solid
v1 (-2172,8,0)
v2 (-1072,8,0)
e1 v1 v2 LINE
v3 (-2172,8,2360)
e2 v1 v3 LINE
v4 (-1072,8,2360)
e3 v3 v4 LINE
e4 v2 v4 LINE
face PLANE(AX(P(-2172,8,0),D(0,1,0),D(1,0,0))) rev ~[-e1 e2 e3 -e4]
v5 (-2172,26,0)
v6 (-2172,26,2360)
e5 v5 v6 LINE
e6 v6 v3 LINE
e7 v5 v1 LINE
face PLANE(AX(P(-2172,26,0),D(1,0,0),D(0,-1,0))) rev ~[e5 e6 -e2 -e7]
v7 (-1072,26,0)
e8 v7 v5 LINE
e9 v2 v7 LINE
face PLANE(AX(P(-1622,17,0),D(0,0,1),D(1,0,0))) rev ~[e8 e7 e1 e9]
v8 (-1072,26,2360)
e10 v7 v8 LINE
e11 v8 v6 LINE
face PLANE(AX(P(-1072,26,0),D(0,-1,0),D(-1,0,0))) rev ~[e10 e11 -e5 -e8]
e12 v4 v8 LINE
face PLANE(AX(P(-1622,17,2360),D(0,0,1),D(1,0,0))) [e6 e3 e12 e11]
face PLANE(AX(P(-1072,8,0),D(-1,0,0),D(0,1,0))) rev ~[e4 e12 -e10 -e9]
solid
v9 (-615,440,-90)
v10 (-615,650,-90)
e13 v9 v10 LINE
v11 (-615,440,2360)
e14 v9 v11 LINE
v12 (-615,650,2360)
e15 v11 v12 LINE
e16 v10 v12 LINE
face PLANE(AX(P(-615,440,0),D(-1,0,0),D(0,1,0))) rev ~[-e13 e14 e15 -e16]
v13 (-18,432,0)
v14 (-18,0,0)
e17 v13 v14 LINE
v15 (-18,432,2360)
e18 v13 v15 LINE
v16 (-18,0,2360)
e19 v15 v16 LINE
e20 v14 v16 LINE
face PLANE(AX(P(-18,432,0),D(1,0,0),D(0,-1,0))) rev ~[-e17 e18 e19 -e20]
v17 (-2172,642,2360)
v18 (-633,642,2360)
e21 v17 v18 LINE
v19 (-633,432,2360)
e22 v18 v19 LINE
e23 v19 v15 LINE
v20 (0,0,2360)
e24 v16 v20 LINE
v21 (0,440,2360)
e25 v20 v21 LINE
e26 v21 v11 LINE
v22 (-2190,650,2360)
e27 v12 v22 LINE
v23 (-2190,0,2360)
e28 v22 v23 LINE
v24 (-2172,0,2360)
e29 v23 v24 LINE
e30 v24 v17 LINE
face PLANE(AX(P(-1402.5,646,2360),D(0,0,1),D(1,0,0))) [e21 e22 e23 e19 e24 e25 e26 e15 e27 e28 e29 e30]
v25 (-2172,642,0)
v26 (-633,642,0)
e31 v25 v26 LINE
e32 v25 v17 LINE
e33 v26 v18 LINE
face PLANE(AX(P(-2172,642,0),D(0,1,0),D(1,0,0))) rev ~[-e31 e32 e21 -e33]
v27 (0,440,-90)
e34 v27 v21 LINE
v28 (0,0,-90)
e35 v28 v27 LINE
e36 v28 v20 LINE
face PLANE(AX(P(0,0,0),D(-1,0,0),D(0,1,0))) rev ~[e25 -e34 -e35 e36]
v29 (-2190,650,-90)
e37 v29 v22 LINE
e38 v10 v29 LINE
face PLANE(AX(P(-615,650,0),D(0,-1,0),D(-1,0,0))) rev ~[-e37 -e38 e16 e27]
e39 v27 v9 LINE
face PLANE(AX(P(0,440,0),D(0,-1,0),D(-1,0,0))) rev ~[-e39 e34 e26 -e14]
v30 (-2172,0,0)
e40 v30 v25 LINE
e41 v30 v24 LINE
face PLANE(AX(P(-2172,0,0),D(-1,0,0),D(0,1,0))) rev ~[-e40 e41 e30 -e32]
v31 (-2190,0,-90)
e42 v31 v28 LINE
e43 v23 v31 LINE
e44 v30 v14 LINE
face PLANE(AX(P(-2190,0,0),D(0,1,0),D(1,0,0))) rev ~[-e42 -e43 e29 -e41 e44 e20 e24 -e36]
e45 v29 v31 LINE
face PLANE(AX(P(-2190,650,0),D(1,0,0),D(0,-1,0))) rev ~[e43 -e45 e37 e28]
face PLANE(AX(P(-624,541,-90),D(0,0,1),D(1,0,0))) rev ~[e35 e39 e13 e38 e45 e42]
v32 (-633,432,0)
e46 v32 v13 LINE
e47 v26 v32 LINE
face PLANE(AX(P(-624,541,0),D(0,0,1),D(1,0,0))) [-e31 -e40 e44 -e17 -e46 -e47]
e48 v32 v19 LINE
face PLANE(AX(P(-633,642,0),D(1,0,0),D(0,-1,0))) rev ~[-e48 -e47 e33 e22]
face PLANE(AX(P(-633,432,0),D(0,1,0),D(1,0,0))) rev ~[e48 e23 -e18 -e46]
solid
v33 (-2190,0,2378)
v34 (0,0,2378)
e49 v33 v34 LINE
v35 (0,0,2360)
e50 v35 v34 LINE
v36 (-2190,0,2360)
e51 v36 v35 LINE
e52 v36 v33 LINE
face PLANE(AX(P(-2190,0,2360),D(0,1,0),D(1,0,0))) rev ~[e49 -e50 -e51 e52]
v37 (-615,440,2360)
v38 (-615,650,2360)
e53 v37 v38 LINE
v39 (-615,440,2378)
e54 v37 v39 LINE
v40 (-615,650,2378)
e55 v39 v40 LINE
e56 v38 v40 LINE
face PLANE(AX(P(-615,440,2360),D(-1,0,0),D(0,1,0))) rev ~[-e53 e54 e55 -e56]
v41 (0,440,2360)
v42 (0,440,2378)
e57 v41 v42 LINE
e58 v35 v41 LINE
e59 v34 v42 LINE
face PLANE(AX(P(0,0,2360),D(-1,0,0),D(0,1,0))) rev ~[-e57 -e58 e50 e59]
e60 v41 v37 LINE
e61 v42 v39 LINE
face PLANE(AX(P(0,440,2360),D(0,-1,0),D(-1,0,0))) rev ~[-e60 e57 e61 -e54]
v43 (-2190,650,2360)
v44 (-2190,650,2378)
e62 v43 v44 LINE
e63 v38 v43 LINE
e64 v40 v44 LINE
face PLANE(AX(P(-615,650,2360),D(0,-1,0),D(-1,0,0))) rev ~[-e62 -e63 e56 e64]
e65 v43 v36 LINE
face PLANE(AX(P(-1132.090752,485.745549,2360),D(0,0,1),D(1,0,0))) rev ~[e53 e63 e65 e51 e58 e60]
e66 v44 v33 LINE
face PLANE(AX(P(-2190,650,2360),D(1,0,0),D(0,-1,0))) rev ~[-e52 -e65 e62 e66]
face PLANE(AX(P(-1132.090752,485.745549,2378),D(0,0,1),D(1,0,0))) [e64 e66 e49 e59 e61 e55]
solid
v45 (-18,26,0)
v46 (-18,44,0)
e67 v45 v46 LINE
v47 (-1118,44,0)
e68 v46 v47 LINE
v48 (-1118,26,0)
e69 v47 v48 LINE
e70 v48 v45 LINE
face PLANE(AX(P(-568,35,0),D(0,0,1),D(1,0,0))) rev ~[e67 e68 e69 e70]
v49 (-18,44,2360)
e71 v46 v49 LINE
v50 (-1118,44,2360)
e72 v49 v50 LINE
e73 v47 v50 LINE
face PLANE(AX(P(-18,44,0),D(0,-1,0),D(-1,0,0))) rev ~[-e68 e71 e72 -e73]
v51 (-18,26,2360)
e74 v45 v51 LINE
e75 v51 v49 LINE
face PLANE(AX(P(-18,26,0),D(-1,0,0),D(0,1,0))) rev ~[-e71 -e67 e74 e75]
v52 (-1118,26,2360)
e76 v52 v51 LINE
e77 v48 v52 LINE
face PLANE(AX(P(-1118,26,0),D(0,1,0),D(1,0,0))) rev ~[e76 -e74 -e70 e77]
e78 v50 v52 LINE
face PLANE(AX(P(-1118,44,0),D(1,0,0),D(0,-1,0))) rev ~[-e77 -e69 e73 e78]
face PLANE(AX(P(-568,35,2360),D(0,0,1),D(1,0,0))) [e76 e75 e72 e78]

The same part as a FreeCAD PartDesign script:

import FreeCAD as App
import Part
import Sketcher

V = App.Vector

doc = App.newDocument("Part")
body = doc.addObject("PartDesign::Body", "Body")

# Sketch on XY plane
sketch1 = body.newObject("Sketcher::SketchObject", "Sketch")
sketch1.AttachmentSupport = (doc.getObject("XY_Plane"), [""])
sketch1.MapMode = "FlatFace"
sketch1.addGeometry([
    Part.LineSegment(V(-615, 440, 0), V(-615, 650, 0)),  # 0
    Part.LineSegment(V(-615, 650, 0), V(-2190, 650, 0)),  # 1
    Part.LineSegment(V(-2190, 650, 0), V(-2190, 0, 0)),  # 2
    Part.LineSegment(V(-2190, 0, 0), V(0, 0, 0)),  # 3
    Part.LineSegment(V(0, 0, 0), V(0, 440, 0)),  # 4
    Part.LineSegment(V(0, 440, 0), V(-615, 440, 0)),  # 5
], False)
sketch1.addConstraint([
    Sketcher.Constraint("Coincident", 0, 2, 1, 1),
    Sketcher.Constraint("Coincident", 1, 2, 2, 1),
    Sketcher.Constraint("Coincident", 2, 2, 3, 1),
    Sketcher.Constraint("Coincident", 3, 2, 4, 1),
    Sketcher.Constraint("Coincident", 4, 2, 5, 1),
    Sketcher.Constraint("Coincident", 5, 2, 0, 1),
    Sketcher.Constraint("Vertical", 0),
    Sketcher.Constraint("Horizontal", 1),
    Sketcher.Constraint("Vertical", 2),
    Sketcher.Constraint("Horizontal", 3),
    Sketcher.Constraint("Vertical", 4),
    Sketcher.Constraint("Horizontal", 5),
    Sketcher.Constraint("Coincident", 3, 2, -1, 1),
    Sketcher.Constraint("DistanceX", 1, 2, 1, 1, 1575.0),
    Sketcher.Constraint("DistanceX", 3, 1, 3, 2, 2190.0),
    Sketcher.Constraint("DistanceY", 0, 1, 0, 2, 210.0),
    Sketcher.Constraint("DistanceY", 2, 2, 2, 1, 650.0),
])
pad1 = body.newObject("PartDesign::Pad", "Pad")
pad1.Profile = sketch1
pad1.Length = 90
pad1.Reversed = True

# Sketch on XY plane
sketch2 = body.newObject("Sketcher::SketchObject", "Sketch001")
sketch2.AttachmentSupport = (doc.getObject("XY_Plane"), [""])
sketch2.MapMode = "FlatFace"
sketch2.addGeometry([
    Part.LineSegment(V(-2172, 642, 0), V(-633, 642, 0)),  # 0
    Part.LineSegment(V(-633, 642, 0), V(-633, 432, 0)),  # 1
    Part.LineSegment(V(-633, 432, 0), V(-18, 432, 0)),  # 2
    Part.LineSegment(V(-18, 432, 0), V(-18, 0, 0)),  # 3
    Part.LineSegment(V(-18, 0, 0), V(0, 0, 0)),  # 4
    Part.LineSegment(V(0, 0, 0), V(0, 440, 0)),  # 5
    Part.LineSegment(V(0, 440, 0), V(-615, 440, 0)),  # 6
    Part.LineSegment(V(-615, 440, 0), V(-615, 650, 0)),  # 7
    Part.LineSegment(V(-615, 650, 0), V(-2190, 650, 0)),  # 8
    Part.LineSegment(V(-2190, 650, 0), V(-2190, 0, 0)),  # 9
    Part.LineSegment(V(-2190, 0, 0), V(-2172, 0, 0)),  # 10
    Part.LineSegment(V(-2172, 0, 0), V(-2172, 642, 0)),  # 11
], False)
sketch2.addConstraint([
    Sketcher.Constraint("Coincident", 0, 2, 1, 1),
    Sketcher.Constraint("Coincident", 1, 2, 2, 1),
    Sketcher.Constraint("Coincident", 2, 2, 3, 1),
    Sketcher.Constraint("Coincident", 3, 2, 4, 1),
    Sketcher.Constraint("Coincident", 4, 2, 5, 1),
    Sketcher.Constraint("Coincident", 5, 2, 6, 1),
    Sketcher.Constraint("Coincident", 6, 2, 7, 1),
    Sketcher.Constraint("Coincident", 7, 2, 8, 1),
    Sketcher.Constraint("Coincident", 8, 2, 9, 1),
    Sketcher.Constraint("Coincident", 9, 2, 10, 1),
    Sketcher.Constraint("Coincident", 10, 2, 11, 1),
    Sketcher.Constraint("Coincident", 11, 2, 0, 1),
    Sketcher.Constraint("Horizontal", 0),
    Sketcher.Constraint("Vertical", 1),
    Sketcher.Constraint("Horizontal", 2),
    Sketcher.Constraint("Vertical", 3),
    Sketcher.Constraint("Horizontal", 4),
    Sketcher.Constraint("Vertical", 5),
    Sketcher.Constraint("Horizontal", 6),
    Sketcher.Constraint("Vertical", 7),
    Sketcher.Constraint("Horizontal", 8),
    Sketcher.Constraint("Vertical", 9),
    Sketcher.Constraint("Horizontal", 10),
    Sketcher.Constraint("Vertical", 11),
    Sketcher.Constraint("Coincident", 4, 2, -1, 1),
    Sketcher.Constraint("PointOnObject", 9, 2, -1),
    Sketcher.Constraint("Equal", 2, 6),
    Sketcher.Constraint("Equal", 4, 10),
    Sketcher.Constraint("Equal", 1, 7),
    Sketcher.Constraint("DistanceX", 0, 1, 0, 2, 1539.0),
    Sketcher.Constraint("DistanceX", 2, 1, 2, 2, 615.0),
    Sketcher.Constraint("DistanceX", 4, 1, 4, 2, 18.0),
    Sketcher.Constraint("DistanceY", 1, 2, 1, 1, 210.0),
    Sketcher.Constraint("DistanceY", 3, 2, 3, 1, 432.0),
    Sketcher.Constraint("DistanceY", 5, 1, 5, 2, 440.0),
])
pad2 = body.newObject("PartDesign::Pad", "Pad001")
pad2.Profile = sketch2
pad2.Length = 2360
body2 = doc.addObject("PartDesign::Body", "Body001")

# Sketch on XY plane
sketch3 = body2.newObject("Sketcher::SketchObject", "Sketch002")
sketch3.AttachmentSupport = (doc.getObject("XY_Plane001"), [""])
sketch3.MapMode = "FlatFace"
sketch3.addGeometry([
    Part.LineSegment(V(-2172, 26, 0), V(-2172, 8, 0)),
    Part.LineSegment(V(-2172, 8, 0), V(-1072, 8, 0)),
    Part.LineSegment(V(-1072, 8, 0), V(-1072, 26, 0)),
    Part.LineSegment(V(-1072, 26, 0), V(-2172, 26, 0)),
], False)
sketch3.addConstraint([
    Sketcher.Constraint("Coincident", 0, 2, 1, 1),
    Sketcher.Constraint("Coincident", 1, 2, 2, 1),
    Sketcher.Constraint("Coincident", 2, 2, 3, 1),
    Sketcher.Constraint("Coincident", 3, 2, 0, 1),
    Sketcher.Constraint("Vertical", 0),
    Sketcher.Constraint("Horizontal", 1),
    Sketcher.Constraint("Vertical", 2),
    Sketcher.Constraint("Horizontal", 3),
    Sketcher.Constraint("DistanceX", 1, 1, 1, 2, 1100.0),
    Sketcher.Constraint("DistanceY", 0, 2, 0, 1, 18.0),
    Sketcher.Constraint("DistanceX", 0, 2, -1, 1, 2172.0),
    Sketcher.Constraint("DistanceY", -1, 1, 0, 2, 8.0),
])
pad3 = body2.newObject("PartDesign::Pad", "Pad002")
pad3.Profile = sketch3
pad3.Length = 2360
body3 = doc.addObject("PartDesign::Body", "Body002")

# Sketch on XY plane
sketch4 = body3.newObject("Sketcher::SketchObject", "Sketch003")
sketch4.AttachmentSupport = (doc.getObject("XY_Plane002"), [""])
sketch4.MapMode = "FlatFace"
sketch4.addGeometry([
    Part.LineSegment(V(-18, 26, 0), V(-18, 44, 0)),
    Part.LineSegment(V(-18, 44, 0), V(-1118, 44, 0)),
    Part.LineSegment(V(-1118, 44, 0), V(-1118, 26, 0)),
    Part.LineSegment(V(-1118, 26, 0), V(-18, 26, 0)),
], False)
sketch4.addConstraint([
    Sketcher.Constraint("Coincident", 0, 2, 1, 1),
    Sketcher.Constraint("Coincident", 1, 2, 2, 1),
    Sketcher.Constraint("Coincident", 2, 2, 3, 1),
    Sketcher.Constraint("Coincident", 3, 2, 0, 1),
    Sketcher.Constraint("Vertical", 0),
    Sketcher.Constraint("Horizontal", 1),
    Sketcher.Constraint("Vertical", 2),
    Sketcher.Constraint("Horizontal", 3),
    Sketcher.Constraint("DistanceX", 1, 2, 1, 1, 1100.0),
    Sketcher.Constraint("DistanceY", 0, 1, 0, 2, 18.0),
    Sketcher.Constraint("DistanceX", 0, 2, -1, 1, 18.0),
    Sketcher.Constraint("DistanceY", -1, 1, 0, 2, 44.0),
])
pad4 = body3.newObject("PartDesign::Pad", "Pad003")
pad4.Profile = sketch4
pad4.Length = 2360
body4 = doc.addObject("PartDesign::Body", "Body003")

# Sketch on XY plane
sketch5 = body4.newObject("Sketcher::SketchObject", "Sketch004")
sketch5.AttachmentSupport = (doc.getObject("XY_Plane003"), [""])
sketch5.MapMode = "FlatFace"
sketch5.AttachmentOffset = App.Placement(V(0, 0, 2360), App.Rotation())
sketch5.addGeometry([
    Part.LineSegment(V(-615, 440, 0), V(-615, 650, 0)),  # 0
    Part.LineSegment(V(-615, 650, 0), V(-2190, 650, 0)),  # 1
    Part.LineSegment(V(-2190, 650, 0), V(-2190, 0, 0)),  # 2
    Part.LineSegment(V(-2190, 0, 0), V(0, 0, 0)),  # 3
    Part.LineSegment(V(0, 0, 0), V(0, 440, 0)),  # 4
    Part.LineSegment(V(0, 440, 0), V(-615, 440, 0)),  # 5
], False)
sketch5.addConstraint([
    Sketcher.Constraint("Coincident", 0, 2, 1, 1),
    Sketcher.Constraint("Coincident", 1, 2, 2, 1),
    Sketcher.Constraint("Coincident", 2, 2, 3, 1),
    Sketcher.Constraint("Coincident", 3, 2, 4, 1),
    Sketcher.Constraint("Coincident", 4, 2, 5, 1),
    Sketcher.Constraint("Coincident", 5, 2, 0, 1),
    Sketcher.Constraint("Vertical", 0),
    Sketcher.Constraint("Horizontal", 1),
    Sketcher.Constraint("Vertical", 2),
    Sketcher.Constraint("Horizontal", 3),
    Sketcher.Constraint("Vertical", 4),
    Sketcher.Constraint("Horizontal", 5),
    Sketcher.Constraint("Coincident", 3, 2, -1, 1),
    Sketcher.Constraint("DistanceX", 1, 2, 1, 1, 1575.0),
    Sketcher.Constraint("DistanceX", 3, 1, 3, 2, 2190.0),
    Sketcher.Constraint("DistanceY", 0, 1, 0, 2, 210.0),
    Sketcher.Constraint("DistanceY", 2, 2, 2, 1, 650.0),
])
pad5 = body4.newObject("PartDesign::Pad", "Pad004")
pad5.Profile = sketch5
pad5.Length = 18

doc.recompute()
